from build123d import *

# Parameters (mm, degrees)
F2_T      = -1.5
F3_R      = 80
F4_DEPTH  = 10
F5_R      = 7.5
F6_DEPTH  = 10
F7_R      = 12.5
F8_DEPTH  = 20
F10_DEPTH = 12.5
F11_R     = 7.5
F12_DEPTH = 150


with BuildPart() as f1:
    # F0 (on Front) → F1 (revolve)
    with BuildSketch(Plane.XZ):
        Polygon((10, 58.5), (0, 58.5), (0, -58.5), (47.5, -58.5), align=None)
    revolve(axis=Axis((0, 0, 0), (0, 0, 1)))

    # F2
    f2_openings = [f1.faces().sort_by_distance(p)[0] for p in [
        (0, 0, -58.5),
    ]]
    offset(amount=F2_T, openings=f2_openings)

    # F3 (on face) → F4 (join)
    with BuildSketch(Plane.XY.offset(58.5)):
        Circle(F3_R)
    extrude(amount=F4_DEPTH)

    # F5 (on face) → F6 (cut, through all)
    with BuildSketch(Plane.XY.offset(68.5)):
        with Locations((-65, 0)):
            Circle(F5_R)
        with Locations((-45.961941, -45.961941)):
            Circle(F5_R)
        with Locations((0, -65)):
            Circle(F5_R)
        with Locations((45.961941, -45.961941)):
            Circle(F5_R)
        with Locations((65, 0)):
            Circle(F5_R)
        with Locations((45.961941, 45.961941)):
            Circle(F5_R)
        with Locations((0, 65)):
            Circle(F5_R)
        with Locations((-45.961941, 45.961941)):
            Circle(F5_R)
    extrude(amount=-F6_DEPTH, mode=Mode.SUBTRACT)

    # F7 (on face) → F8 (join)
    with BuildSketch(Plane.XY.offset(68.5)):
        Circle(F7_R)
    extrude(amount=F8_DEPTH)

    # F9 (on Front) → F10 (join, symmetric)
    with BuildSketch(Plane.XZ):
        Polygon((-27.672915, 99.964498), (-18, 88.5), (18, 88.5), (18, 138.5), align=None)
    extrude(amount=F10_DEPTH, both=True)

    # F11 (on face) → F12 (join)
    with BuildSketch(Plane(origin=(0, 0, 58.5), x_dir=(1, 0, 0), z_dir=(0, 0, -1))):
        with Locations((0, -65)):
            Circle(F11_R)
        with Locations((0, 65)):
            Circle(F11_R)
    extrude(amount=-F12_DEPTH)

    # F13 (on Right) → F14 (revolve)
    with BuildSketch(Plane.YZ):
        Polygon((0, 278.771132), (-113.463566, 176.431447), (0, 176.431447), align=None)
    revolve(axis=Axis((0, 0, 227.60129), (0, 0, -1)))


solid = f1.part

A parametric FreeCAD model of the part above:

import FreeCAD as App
import Part
import Sketcher
from FreeCAD import Vector


def faces_at(feature, points):
    """Names of the faces that lie closest to the given points."""
    faces = feature.Shape.Faces
    near = lambda p: min(range(len(faces)), key=lambda i: faces[i].distToShape(Part.Vertex(*p))[0])
    return sorted({f"Face{near(p) + 1}" for p in points})

doc = App.newDocument("Part")
body = doc.addObject("PartDesign::Body", "Body")

# Sketch on XZ plane
sketch1 = body.newObject("Sketcher::SketchObject", "Sketch")
sketch1.AttachmentSupport = (doc.getObject("XZ_Plane"), [""])
sketch1.MapMode = "FlatFace"
sketch1.addGeometry([
    Part.LineSegment(Vector(10, 58, 0), Vector(0, 58, 0)),
    Part.LineSegment(Vector(0, 58, 0), Vector(0, -58, 0)),
    Part.LineSegment(Vector(0, -58, 0), Vector(48, -58, 0)),
    Part.LineSegment(Vector(48, -58, 0), Vector(10, 58, 0)),
], False)
sketch1.addConstraint([
    Sketcher.Constraint("Coincident", 0, 2, 1, 1),
    Sketcher.Constraint("Coincident", 1, 2, 2, 1),
    Sketcher.Constraint("Coincident", 2, 2, 3, 1),
    Sketcher.Constraint("Coincident", 3, 2, 0, 1),
    Sketcher.Constraint("Horizontal", 0),
    Sketcher.Constraint("Vertical", 1),
    Sketcher.Constraint("Horizontal", 2),
    Sketcher.Constraint("Symmetric", 0, 2, 1, 2, -1, 1),
    Sketcher.Constraint("DistanceX", 0, 2, 0, 1, 10.0),
    Sketcher.Constraint("DistanceY", 1, 2, 1, 1, 117.0),
    Sketcher.Constraint("DistanceX", 2, 1, 2, 2, 47.5),
])
revolution = body.newObject("PartDesign::Revolution", "Revolution")
revolution.Profile = sketch1
revolution.ReferenceAxis = (sketch1, ["V_Axis"])
revolution.Angle = 360
doc.recompute()

thickness = body.newObject("PartDesign::Thickness", "Thickness")
thickness.Base = (revolution, faces_at(revolution, [(0, 0, -58.5)]))
thickness.Value = 1.5
thickness.Reversed = True
thickness.Join = "Arc"

# Sketch on XY plane
sketch2 = body.newObject("Sketcher::SketchObject", "Sketch001")
sketch2.AttachmentSupport = (doc.getObject("XY_Plane"), [""])
sketch2.MapMode = "FlatFace"
sketch2.AttachmentOffset = App.Placement(Vector(0, 0, 58.5), App.Rotation())
sketch2.addGeometry(Part.Circle(Vector(0, 0, 0), Vector(0, 0, 1), 80), False)
sketch2.addConstraint([
    Sketcher.Constraint("Coincident", 0, 3, -1, 1),
    Sketcher.Constraint("Diameter", 0, 160.0),
])
pad1 = body.newObject("PartDesign::Pad", "Pad")
pad1.Profile = sketch2
pad1.Length = 10

# Sketch on XY plane
sketch3 = body.newObject("Sketcher::SketchObject", "Sketch002")
sketch3.AttachmentSupport = (doc.getObject("XY_Plane"), [""])
sketch3.MapMode = "FlatFace"
sketch3.AttachmentOffset = App.Placement(Vector(0, 0, 68.5), App.Rotation())
sketch3.addGeometry([
    Part.Circle(Vector(-65, 0, 0), Vector(0, 0, 1), 8),  # 0
    Part.Circle(Vector(-46, -46, 0), Vector(0, 0, 1), 8),  # 1
    Part.Circle(Vector(0, -65, 0), Vector(0, 0, 1), 8),  # 2
    Part.Circle(Vector(46, -46, 0), Vector(0, 0, 1), 8),  # 3
    Part.Circle(Vector(65, 0, 0), Vector(0, 0, 1), 8),  # 4
    Part.Circle(Vector(46, 46, 0), Vector(0, 0, 1), 8),  # 5
    Part.Circle(Vector(0, 65, 0), Vector(0, 0, 1), 8),  # 6
    Part.Circle(Vector(-46, 46, 0), Vector(0, 0, 1), 8),  # 7
], False)
sketch3.addConstraint([
    Sketcher.Constraint("Equal", 0, 1),
    Sketcher.Constraint("Equal", 1, 2),
    Sketcher.Constraint("Equal", 2, 3),
    Sketcher.Constraint("Equal", 3, 4),
    Sketcher.Constraint("Equal", 4, 5),
    Sketcher.Constraint("Equal", 5, 6),
    Sketcher.Constraint("Equal", 6, 7),
    Sketcher.Constraint("Symmetric", 0, 3, 4, 3, -1, 1),
    Sketcher.Constraint("Symmetric", 1, 3, 5, 3, -1, 1),
    Sketcher.Constraint("Symmetric", 2, 3, 6, 3, -1, 1),
    Sketcher.Constraint("Symmetric", 3, 3, 7, 3, -1, 1),
    Sketcher.Constraint("Symmetric", 1, 3, 3, 3, -2),
    Sketcher.Constraint("PointOnObject", 0, 3, -1),
    Sketcher.Constraint("PointOnObject", 2, 3, -2),
    Sketcher.Constraint("Diameter", 0, 15.0),
    Sketcher.Constraint("DistanceX", 0, 3, -1, 1, 65.0),
    Sketcher.Constraint("DistanceY", 2, 3, -1, 1, 65.0),
    Sketcher.Constraint("DistanceX", 1, 3, -1, 1, 45.961941),
    Sketcher.Constraint("DistanceY", 1, 3, -1, 1, 45.961941),
])
pocket1 = body.newObject("PartDesign::Pocket", "Pocket")
pocket1.Profile = sketch3
pocket1.Type = "ThroughAll"

# Sketch on XY plane
sketch4 = body.newObject("Sketcher::SketchObject", "Sketch003")
sketch4.AttachmentSupport = (doc.getObject("XY_Plane"), [""])
sketch4.MapMode = "FlatFace"
sketch4.AttachmentOffset = App.Placement(Vector(0, 0, 68.5), App.Rotation())
sketch4.addGeometry(Part.Circle(Vector(0, 0, 0), Vector(0, 0, 1), 12), False)
sketch4.addConstraint([
    Sketcher.Constraint("Coincident", 0, 3, -1, 1),
    Sketcher.Constraint("Diameter", 0, 25.0),
])
pad2 = body.newObject("PartDesign::Pad", "Pad001")
pad2.Profile = sketch4
pad2.Length = 20

# Sketch on XZ plane
sketch5 = body.newObject("Sketcher::SketchObject", "Sketch004")
sketch5.AttachmentSupport = (doc.getObject("XZ_Plane"), [""])
sketch5.MapMode = "FlatFace"
sketch5.addGeometry([
    Part.LineSegment(Vector(-28, 100, 0), Vector(-18, 88, 0)),
    Part.LineSegment(Vector(-18, 88, 0), Vector(18, 88, 0)),
    Part.LineSegment(Vector(18, 88, 0), Vector(18, 138, 0)),
    Part.LineSegment(Vector(18, 138, 0), Vector(-28, 100, 0)),
], False)
sketch5.addConstraint([
    Sketcher.Constraint("Coincident", 0, 2, 1, 1),
    Sketcher.Constraint("Coincident", 1, 2, 2, 1),
    Sketcher.Constraint("Coincident", 2, 2, 3, 1),
    Sketcher.Constraint("Coincident", 3, 2, 0, 1),
    Sketcher.Constraint("Horizontal", 1),
    Sketcher.Constraint("Vertical", 2),
    Sketcher.Constraint("Perpendicular", 0, 3),
    Sketcher.Constraint("DistanceX", 1, 1, 1, 2, 36.0),
    Sketcher.Constraint("DistanceY", 2, 1, 2, 2, 50.0),
    Sketcher.Constraint("Distance", 0, 15.0),
    Sketcher.Constraint("DistanceX", 0, 2, -1, 1, 18.0),
    Sketcher.Constraint("DistanceY", -1, 1, 0, 2, 88.5),
])
pad3 = body.newObject("PartDesign::Pad", "Pad002")
pad3.Profile = sketch5
pad3.Length = 25
pad3.Midplane = True

# Sketch on XY plane
sketch6 = body.newObject("Sketcher::SketchObject", "Sketch005")
sketch6.AttachmentSupport = (doc.getObject("XY_Plane"), [""])
sketch6.MapMode = "FlatFace"
sketch6.AttachmentOffset = App.Placement(Vector(0, 0, 58.5), App.Rotation())
sketch6.addGeometry([
    Part.Circle(Vector(0, 65, 0), Vector(0, 0, 1), 8),
    Part.Circle(Vector(0, -65, 0), Vector(0, 0, 1), 8),
], False)
sketch6.addConstraint([
    Sketcher.Constraint("Equal", 0, 1),
    Sketcher.Constraint("Symmetric", 0, 3, 1, 3, -1, 1),
    Sketcher.Constraint("PointOnObject", 0, 3, -2),
    Sketcher.Constraint("Diameter", 0, 15.0),
    Sketcher.Constraint("DistanceY", -1, 1, 0, 3, 65.0),
])
pad4 = body.newObject("PartDesign::Pad", "Pad003")
pad4.Profile = sketch6
pad4.Length = 150

# Sketch on YZ plane
sketch7 = body.newObject("Sketcher::SketchObject", "Sketch006")
sketch7.AttachmentSupport = (doc.getObject("YZ_Plane"), [""])
sketch7.MapMode = "FlatFace"
sketch7.addGeometry([
    Part.LineSegment(Vector(0, 279, 0), Vector(-113, 176, 0)),
    Part.LineSegment(Vector(-113, 176, 0), Vector(0, 176, 0)),
    Part.LineSegment(Vector(0, 176, 0), Vector(0, 279, 0)),
], False)
sketch7.addConstraint([
    Sketcher.Constraint("Coincident", 0, 2, 1, 1),
    Sketcher.Constraint("Coincident", 1, 2, 2, 1),
    Sketcher.Constraint("Coincident", 2, 2, 0, 1),
    Sketcher.Constraint("Horizontal", 1),
    Sketcher.Constraint("Vertical", 2),
    Sketcher.Constraint("PointOnObject", 1, 2, -2),
    Sketcher.Constraint("DistanceX", 1, 1, 1, 2, 113.463566),
    Sketcher.Constraint("DistanceY", 2, 1, 2, 2, 102.339685),
    Sketcher.Constraint("DistanceY", -1, 1, 2, 2, 278.771132),
])
revolution2 = body.newObject("PartDesign::Revolution", "Revolution001")
revolution2.Profile = sketch7
revolution2.ReferenceAxis = (sketch7, ["V_Axis"])
revolution2.Angle = 360

doc.recompute()
